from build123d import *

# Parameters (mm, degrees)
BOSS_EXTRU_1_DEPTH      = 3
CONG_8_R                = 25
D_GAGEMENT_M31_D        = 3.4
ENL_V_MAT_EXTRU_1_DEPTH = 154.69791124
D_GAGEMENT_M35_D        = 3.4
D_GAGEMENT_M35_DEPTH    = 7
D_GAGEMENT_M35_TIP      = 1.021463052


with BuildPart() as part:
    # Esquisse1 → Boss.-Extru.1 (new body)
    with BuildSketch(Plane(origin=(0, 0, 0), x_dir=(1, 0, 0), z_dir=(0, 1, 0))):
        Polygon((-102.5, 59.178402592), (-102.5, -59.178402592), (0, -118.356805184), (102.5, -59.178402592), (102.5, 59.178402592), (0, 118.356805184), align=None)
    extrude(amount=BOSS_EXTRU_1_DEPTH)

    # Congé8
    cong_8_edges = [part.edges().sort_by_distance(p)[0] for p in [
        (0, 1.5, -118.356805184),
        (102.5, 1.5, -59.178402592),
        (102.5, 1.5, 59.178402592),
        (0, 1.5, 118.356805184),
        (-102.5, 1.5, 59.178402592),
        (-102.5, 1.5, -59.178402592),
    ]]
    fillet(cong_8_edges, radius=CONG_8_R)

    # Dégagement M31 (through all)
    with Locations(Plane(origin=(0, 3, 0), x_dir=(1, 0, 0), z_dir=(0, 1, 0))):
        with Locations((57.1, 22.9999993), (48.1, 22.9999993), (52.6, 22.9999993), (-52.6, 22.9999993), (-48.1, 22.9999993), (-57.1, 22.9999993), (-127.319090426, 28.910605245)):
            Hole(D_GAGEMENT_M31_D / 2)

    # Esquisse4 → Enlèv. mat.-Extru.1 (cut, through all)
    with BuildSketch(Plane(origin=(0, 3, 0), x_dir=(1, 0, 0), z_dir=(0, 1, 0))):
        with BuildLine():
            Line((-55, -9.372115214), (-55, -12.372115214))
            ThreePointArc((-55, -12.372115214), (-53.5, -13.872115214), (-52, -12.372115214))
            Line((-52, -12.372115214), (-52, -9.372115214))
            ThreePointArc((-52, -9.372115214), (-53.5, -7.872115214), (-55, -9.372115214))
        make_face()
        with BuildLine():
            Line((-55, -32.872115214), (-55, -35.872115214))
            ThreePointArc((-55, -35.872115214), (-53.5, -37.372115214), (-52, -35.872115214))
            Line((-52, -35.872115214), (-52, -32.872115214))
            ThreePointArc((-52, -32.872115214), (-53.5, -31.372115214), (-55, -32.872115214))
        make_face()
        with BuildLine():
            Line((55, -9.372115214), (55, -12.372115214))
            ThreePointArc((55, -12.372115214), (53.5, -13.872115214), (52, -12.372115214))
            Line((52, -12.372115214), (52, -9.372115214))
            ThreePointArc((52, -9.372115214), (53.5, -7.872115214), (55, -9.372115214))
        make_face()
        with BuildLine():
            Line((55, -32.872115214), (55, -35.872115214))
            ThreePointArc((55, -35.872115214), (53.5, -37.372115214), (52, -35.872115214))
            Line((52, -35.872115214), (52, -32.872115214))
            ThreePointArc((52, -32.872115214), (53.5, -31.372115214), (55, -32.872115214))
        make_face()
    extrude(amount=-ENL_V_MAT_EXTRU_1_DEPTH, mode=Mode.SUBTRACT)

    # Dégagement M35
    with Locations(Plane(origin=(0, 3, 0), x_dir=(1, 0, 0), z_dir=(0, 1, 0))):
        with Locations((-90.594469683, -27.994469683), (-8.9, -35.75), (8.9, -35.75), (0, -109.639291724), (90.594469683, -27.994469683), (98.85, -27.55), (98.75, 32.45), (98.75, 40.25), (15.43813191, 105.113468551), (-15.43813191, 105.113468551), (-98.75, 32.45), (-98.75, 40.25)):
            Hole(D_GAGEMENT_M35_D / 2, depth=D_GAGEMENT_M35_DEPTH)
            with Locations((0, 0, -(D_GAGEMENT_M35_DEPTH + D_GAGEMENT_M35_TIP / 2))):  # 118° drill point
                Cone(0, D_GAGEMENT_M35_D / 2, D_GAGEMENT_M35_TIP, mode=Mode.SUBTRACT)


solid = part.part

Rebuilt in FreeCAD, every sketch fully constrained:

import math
import FreeCAD as App
import Part
import Sketcher
from FreeCAD import Vector
Q = App.Units.Quantity


def edges_at(feature, points):
    """Names of the edges that pass closest to the given points."""
    edges = feature.Shape.Edges
    near = lambda p: min(range(len(edges)), key=lambda i: edges[i].distToShape(Part.Vertex(*p))[0])
    return sorted({f"Edge{near(p) + 1}" for p in points})

doc = App.newDocument("Part")
params = doc.addObject("Spreadsheet::Sheet", "Params")
for row, (alias, value) in enumerate([
    ("pad1_length", "3 mm"),
    ("fillet_radius", "25 mm"),
    ("sketch2_diameter", "3.4 mm"),
    ("hole_diameter", "3.4 mm"),
    ("sketch3_radius", "1.5 mm"),
    ("sketch3_height", "3 mm"),
    ("sketch4_diameter", "3.4 mm"),
    ("hole2_diameter", "3.4 mm"),
    ("hole2_depth", "7 mm"),
], start=1):
    params.set(f"A{row}", alias)
    params.set(f"B{row}", "=" + value)
    params.setAlias(f"B{row}", alias)

body = doc.addObject("PartDesign::Body", "Body")

sketch1 = doc.addObject("Sketcher::SketchObject", "Sketch")
body.addObject(sketch1)
sketch1.AttachmentSupport = (doc.XZ_Plane, [""])
sketch1.MapMode = "FlatFace"
sketch1.addGeometry([
    Part.LineSegment(Vector(-102.5, -59.178403, 0), Vector(-102.5, 59.178403, 0)),
    Part.LineSegment(Vector(-102.5, 59.178403, 0), Vector(0, 118.356805, 0)),
    Part.LineSegment(Vector(0, 118.356805, 0), Vector(102.5, 59.178403, 0)),
    Part.LineSegment(Vector(102.5, 59.178403, 0), Vector(102.5, -59.178403, 0)),
    Part.LineSegment(Vector(102.5, -59.178403, 0), Vector(0, -118.356805, 0)),
    Part.LineSegment(Vector(0, -118.356805, 0), Vector(-102.5, -59.178403, 0)),
], False)
sketch1.addConstraint([
    Sketcher.Constraint("Coincident", 0, 2, 1, 1),
    Sketcher.Constraint("Coincident", 1, 2, 2, 1),
    Sketcher.Constraint("Coincident", 2, 2, 3, 1),
    Sketcher.Constraint("Coincident", 3, 2, 4, 1),
    Sketcher.Constraint("Coincident", 4, 2, 5, 1),
    Sketcher.Constraint("Coincident", 5, 2, 0, 1),
    Sketcher.Constraint("Vertical", 0),
    Sketcher.Constraint("Vertical", 3),
    Sketcher.Constraint("Symmetric", 0, 2, 3, 2, -1, 1),
    Sketcher.Constraint("Symmetric", 1, 2, 4, 2, -1, 1),
    Sketcher.Constraint("PointOnObject", 1, 2, -2),
    Sketcher.Constraint("Parallel", 2, 5),
    Sketcher.Constraint("Horizontal", 0, 2, 2, 2),
    Sketcher.Constraint("Angle", 1, Q("30 deg")),
    Sketcher.Constraint("DistanceX", 0, 2, 2, 2, 205.0),
    Sketcher.Constraint("DistanceY", 0, 1, 0, 2, 118.356805),
])
pad1 = doc.addObject("PartDesign::Pad", "Pad")
body.addObject(pad1)
pad1.Profile = sketch1
pad1.setExpression("Length", "Params.pad1_length")
pad1.Reversed = True
doc.recompute()

fillet = doc.addObject("PartDesign::Fillet", "Fillet")
body.addObject(fillet)
fillet.Base = (pad1, edges_at(pad1, [
    (0, 1.5, -118.357),
    (102.5, 1.5, -59.178),
    (102.5, 1.5, 59.178),
    (0, 1.5, 118.357),
    (-102.5, 1.5, 59.178),
    (-102.5, 1.5, -59.178),
]))
fillet.setExpression("Radius", "Params.fillet_radius")

sketch2 = doc.addObject("Sketcher::SketchObject", "Sketch001")
body.addObject(sketch2)
sketch2.AttachmentSupport = (doc.XZ_Plane, [""])
sketch2.MapMode = "FlatFace"
sketch2.AttachmentOffset = App.Placement(Vector(0, 0, -3), App.Rotation())
sketch2.addGeometry([
    Part.Circle(Vector(57.1, -22.999999, 0), Vector(0, 0, 1), 1.7),
    Part.Circle(Vector(48.1, -22.999999, 0), Vector(0, 0, 1), 1.7),
    Part.Circle(Vector(52.6, -22.999999, 0), Vector(0, 0, 1), 1.7),
    Part.Circle(Vector(-52.6, -22.999999, 0), Vector(0, 0, 1), 1.7),
    Part.Circle(Vector(-48.1, -22.999999, 0), Vector(0, 0, 1), 1.7),
    Part.Circle(Vector(-57.1, -22.999999, 0), Vector(0, 0, 1), 1.7),
    Part.Circle(Vector(-127.31909, -28.910605, 0), Vector(0, 0, 1), 1.7),
], False)
sketch2.addConstraint([
    Sketcher.Constraint("Equal", 0, 1),
    Sketcher.Constraint("Equal", 1, 2),
    Sketcher.Constraint("Equal", 2, 3),
    Sketcher.Constraint("Equal", 3, 4),
    Sketcher.Constraint("Equal", 4, 5),
    Sketcher.Constraint("Equal", 5, 6),
    Sketcher.Constraint("Symmetric", 2, 3, 3, 3, -2),
    Sketcher.Constraint("Symmetric", 1, 3, 4, 3, -2),
    Sketcher.Constraint("Symmetric", 0, 3, 5, 3, -2),
    Sketcher.Constraint("Horizontal", 0, 3, 1, 3),
    Sketcher.Constraint("Horizontal", 1, 3, 2, 3),
    Sketcher.Constraint("Diameter", 0, 3.4),
    Sketcher.Constraint("DistanceY", 0, 3, -1, 1, 22.999999),
    Sketcher.Constraint("DistanceX", 1, 3, 0, 3, 9.0),
    Sketcher.Constraint("DistanceX", -1, 1, 0, 3, 57.1),
    Sketcher.Constraint("DistanceX", -1, 1, 2, 3, 52.6),
    Sketcher.Constraint("DistanceX", 6, 3, -1, 1, 127.31909),
    Sketcher.Constraint("DistanceY", 6, 3, -1, 1, 28.910605),
])
sketch2.setExpression("Constraints[11]", "Params.sketch2_diameter")
doc.recompute()
hole = doc.addObject("PartDesign::Hole", "Hole")
body.addObject(hole)
hole.Profile = sketch2
hole.ThreadType = "None"
hole.setExpression("Diameter", "Params.hole_diameter")
hole.DepthType = "ThroughAll"
hole.Reversed = True

sketch3 = doc.addObject("Sketcher::SketchObject", "Sketch002")
body.addObject(sketch3)
sketch3.AttachmentSupport = (doc.XZ_Plane, [""])
sketch3.MapMode = "FlatFace"
sketch3.AttachmentOffset = App.Placement(Vector(0, 0, -3), App.Rotation())
sketch3.addGeometry([
    Part.LineSegment(Vector(-55, 9.372115, 0), Vector(-55, 12.372115, 0)),
    Part.ArcOfCircle(Part.Circle(Vector(-53.5, 12.372115, 0), Vector(0, 0, 1), 1.5), math.radians(0), math.radians(180)),
    Part.LineSegment(Vector(-52, 12.372115, 0), Vector(-52, 9.372115, 0)),
    Part.ArcOfCircle(Part.Circle(Vector(-53.5, 9.372115, 0), Vector(0, 0, 1), 1.5), math.radians(180), math.radians(360)),
    Part.LineSegment(Vector(-55, 32.872115, 0), Vector(-55, 35.872115, 0)),
    Part.ArcOfCircle(Part.Circle(Vector(-53.5, 35.872115, 0), Vector(0, 0, 1), 1.5), math.radians(0), math.radians(180)),
    Part.LineSegment(Vector(-52, 35.872115, 0), Vector(-52, 32.872115, 0)),
    Part.ArcOfCircle(Part.Circle(Vector(-53.5, 32.872115, 0), Vector(0, 0, 1), 1.5), math.radians(180), math.radians(360)),
    Part.LineSegment(Vector(55, 12.372115, 0), Vector(55, 9.372115, 0)),
    Part.ArcOfCircle(Part.Circle(Vector(53.5, 9.372115, 0), Vector(0, 0, 1), 1.5), math.radians(180), math.radians(360)),
    Part.LineSegment(Vector(52, 9.372115, 0), Vector(52, 12.372115, 0)),
    Part.ArcOfCircle(Part.Circle(Vector(53.5, 12.372115, 0), Vector(0, 0, 1), 1.5), math.radians(0), math.radians(180)),
    Part.LineSegment(Vector(55, 35.872115, 0), Vector(55, 32.872115, 0)),
    Part.ArcOfCircle(Part.Circle(Vector(53.5, 32.872115, 0), Vector(0, 0, 1), 1.5), math.radians(180), math.radians(360)),
    Part.LineSegment(Vector(52, 32.872115, 0), Vector(52, 35.872115, 0)),
    Part.ArcOfCircle(Part.Circle(Vector(53.5, 35.872115, 0), Vector(0, 0, 1), 1.5), math.radians(0), math.radians(180)),
], False)
sketch3.addConstraint([
    Sketcher.Constraint("Tangent", 0, 2, 1, 2),
    Sketcher.Constraint("Tangent", 1, 1, 2, 1),
    Sketcher.Constraint("Tangent", 2, 2, 3, 2),
    Sketcher.Constraint("Tangent", 3, 1, 0, 1),
    Sketcher.Constraint("Tangent", 4, 2, 5, 2),
    Sketcher.Constraint("Tangent", 5, 1, 6, 1),
    Sketcher.Constraint("Tangent", 6, 2, 7, 2),
    Sketcher.Constraint("Tangent", 7, 1, 4, 1),
    Sketcher.Constraint("Tangent", 8, 2, 9, 2),
    Sketcher.Constraint("Tangent", 9, 1, 10, 1),
    Sketcher.Constraint("Tangent", 10, 2, 11, 2),
    Sketcher.Constraint("Tangent", 11, 1, 8, 1),
    Sketcher.Constraint("Tangent", 12, 2, 13, 2),
    Sketcher.Constraint("Tangent", 13, 1, 14, 1),
    Sketcher.Constraint("Tangent", 14, 2, 15, 2),
    Sketcher.Constraint("Tangent", 15, 1, 12, 1),
    Sketcher.Constraint("Vertical", 0),
    Sketcher.Constraint("Vertical", 2),
    Sketcher.Constraint("Vertical", 4),
    Sketcher.Constraint("Vertical", 6),
    Sketcher.Constraint("Vertical", 8),
    Sketcher.Constraint("Vertical", 10),
    Sketcher.Constraint("Vertical", 12),
    Sketcher.Constraint("Vertical", 14),
    Sketcher.Constraint("Equal", 3, 5),
    Sketcher.Constraint("Equal", 7, 9),
    Sketcher.Constraint("Equal", 11, 13),
    Sketcher.Constraint("Symmetric", 3, 3, 9, 3, -2),
    Sketcher.Constraint("Symmetric", 7, 3, 13, 3, -2),
    Sketcher.Constraint("Horizontal", 1, 3, 11, 3),
    Sketcher.Constraint("Horizontal", 5, 3, 15, 3),
    Sketcher.Constraint("Vertical", 3, 3, 5, 3),
    Sketcher.Constraint("Equal", 2, 4),
    Sketcher.Constraint("Radius", 1, 1.5),
    Sketcher.Constraint("DistanceY", 0, 1, 0, 2, 3.0),
    Sketcher.Constraint("DistanceX", 0, 2, -1, 1, 55.0),
    Sketcher.Constraint("DistanceY", 1, 3, 5, 3, 23.5),
    Sketcher.Constraint("DistanceY", -1, 1, 1, 3, 12.372115),
])
sketch3.setExpression("Constraints[33]", "Params.sketch3_radius")
sketch3.setExpression("Constraints[34]", "Params.sketch3_height")
pocket1 = doc.addObject("PartDesign::Pocket", "Pocket")
body.addObject(pocket1)
pocket1.Profile = sketch3
pocket1.Type = "ThroughAll"
pocket1.Reversed = True

sketch4 = doc.addObject("Sketcher::SketchObject", "Sketch003")
body.addObject(sketch4)
sketch4.AttachmentSupport = (doc.XZ_Plane, [""])
sketch4.MapMode = "FlatFace"
sketch4.AttachmentOffset = App.Placement(Vector(0, 0, -3), App.Rotation())
sketch4.addGeometry([
    Part.Circle(Vector(-90.59447, 27.99447, 0), Vector(0, 0, 1), 1.7),
    Part.Circle(Vector(-8.9, 35.75, 0), Vector(0, 0, 1), 1.7),
    Part.Circle(Vector(8.9, 35.75, 0), Vector(0, 0, 1), 1.7),
    Part.Circle(Vector(0, 109.639292, 0), Vector(0, 0, 1), 1.7),
    Part.Circle(Vector(90.59447, 27.99447, 0), Vector(0, 0, 1), 1.7),
    Part.Circle(Vector(98.85, 27.55, 0), Vector(0, 0, 1), 1.7),
    Part.Circle(Vector(98.75, -32.45, 0), Vector(0, 0, 1), 1.7),
    Part.Circle(Vector(98.75, -40.25, 0), Vector(0, 0, 1), 1.7),
    Part.Circle(Vector(15.438132, -105.113469, 0), Vector(0, 0, 1), 1.7),
    Part.Circle(Vector(-15.438132, -105.113469, 0), Vector(0, 0, 1), 1.7),
    Part.Circle(Vector(-98.75, -32.45, 0), Vector(0, 0, 1), 1.7),
    Part.Circle(Vector(-98.75, -40.25, 0), Vector(0, 0, 1), 1.7),
], False)
sketch4.addConstraint([
    Sketcher.Constraint("Equal", 0, 1),
    Sketcher.Constraint("Equal", 1, 2),
    Sketcher.Constraint("Equal", 2, 3),
    Sketcher.Constraint("Equal", 3, 4),
    Sketcher.Constraint("Equal", 4, 5),
    Sketcher.Constraint("Equal", 5, 6),
    Sketcher.Constraint("Equal", 6, 7),
    Sketcher.Constraint("Equal", 7, 8),
    Sketcher.Constraint("Equal", 8, 9),
    Sketcher.Constraint("Equal", 9, 10),
    Sketcher.Constraint("Equal", 10, 11),
    Sketcher.Constraint("Symmetric", 1, 3, 2, 3, -2),
    Sketcher.Constraint("Symmetric", 0, 3, 4, 3, -2),
    Sketcher.Constraint("Symmetric", 8, 3, 9, 3, -2),
    Sketcher.Constraint("Symmetric", 6, 3, 10, 3, -2),
    Sketcher.Constraint("Symmetric", 7, 3, 11, 3, -2),
    Sketcher.Constraint("PointOnObject", 3, 3, -2),
    Sketcher.Constraint("Vertical", 6, 3, 7, 3),
    Sketcher.Constraint("Diameter", 0, 3.4),
    Sketcher.Constraint("DistanceY", 6, 3, 5, 3, 60.0),
    Sketcher.Constraint("DistanceY", 7, 3, 2, 3, 76.0),
    Sketcher.Constraint("DistanceX", 1, 3, -1, 1, 8.9),
    Sketcher.Constraint("DistanceY", 5, 3, 2, 3, 8.2),
    Sketcher.Constraint("DistanceX", 6, 3, 5, 3, 0.1),
    Sketcher.Constraint("DistanceY", -1, 1, 1, 3, 35.75),
    Sketcher.Constraint("DistanceX", -1, 1, 5, 3, 98.85),
    Sketcher.Constraint("DistanceX", 0, 3, -1, 1, 90.59447),
    Sketcher.Constraint("DistanceY", -1, 1, 0, 3, 27.99447),
    Sketcher.Constraint("DistanceY", -1, 1, 3, 3, 109.639292),
    Sketcher.Constraint("DistanceX", -1, 1, 8, 3, 15.438132),
    Sketcher.Constraint("DistanceY", 8, 3, -1, 1, 105.113469),
])
sketch4.setExpression("Constraints[18]", "Params.sketch4_diameter")
doc.recompute()
hole2 = doc.addObject("PartDesign::Hole", "Hole001")
body.addObject(hole2)
hole2.Profile = sketch4
hole2.ThreadType = "None"
hole2.setExpression("Diameter", "Params.hole2_diameter")
hole2.DepthType = "Dimension"
hole2.setExpression("Depth", "Params.hole2_depth")
hole2.DrillPoint = "Angled"
hole2.DrillPointAngle = 118
hole2.Reversed = True

doc.recompute()
